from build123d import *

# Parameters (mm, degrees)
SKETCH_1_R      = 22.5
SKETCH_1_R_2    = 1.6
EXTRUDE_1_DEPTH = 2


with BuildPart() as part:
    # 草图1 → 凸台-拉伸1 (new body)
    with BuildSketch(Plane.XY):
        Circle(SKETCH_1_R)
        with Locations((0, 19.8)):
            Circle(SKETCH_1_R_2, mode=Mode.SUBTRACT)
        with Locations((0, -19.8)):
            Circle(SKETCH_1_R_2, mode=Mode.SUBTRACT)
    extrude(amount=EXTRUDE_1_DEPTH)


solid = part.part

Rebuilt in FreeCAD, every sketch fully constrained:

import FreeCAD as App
import Part
import Sketcher
from FreeCAD import Vector

doc = App.newDocument("Part")
body = doc.addObject("PartDesign::Body", "Body")

sketch1 = doc.addObject("Sketcher::SketchObject", "Sketch")
body.addObject(sketch1)
sketch1.AttachmentSupport = (doc.XY_Plane, [""])
sketch1.MapMode = "FlatFace"
sketch1.addGeometry(Part.Circle(Vector(0, 0, 0), Vector(0, 0, 1), 22.5), False)
sketch1.addGeometry(Part.Circle(Vector(0, -19.8, 0), Vector(0, 0, 1), 1.6), False)
sketch1.addGeometry(Part.Circle(Vector(0, 19.8, 0), Vector(0, 0, 1), 1.6), False)
sketch1.addConstraint(Sketcher.Constraint("Coincident", 0, 3, -1, 1))
sketch1.addConstraint(Sketcher.Constraint("Equal", 1, 2))
sketch1.addConstraint(Sketcher.Constraint("Symmetric", 1, 3, 2, 3, -1, 1))
sketch1.addConstraint(Sketcher.Constraint("PointOnObject", 1, 3, -2))
sketch1.addConstraint(Sketcher.Constraint("Diameter", 0, 45.0))
sketch1.addConstraint(Sketcher.Constraint("Diameter", 1, 3.2))
sketch1.addConstraint(Sketcher.Constraint("DistanceY", 1, 3, -1, 1, 19.8))
pad1 = doc.addObject("PartDesign::Pad", "Pad")
body.addObject(pad1)
pad1.Profile = sketch1
pad1.Length = 2

doc.recompute()
